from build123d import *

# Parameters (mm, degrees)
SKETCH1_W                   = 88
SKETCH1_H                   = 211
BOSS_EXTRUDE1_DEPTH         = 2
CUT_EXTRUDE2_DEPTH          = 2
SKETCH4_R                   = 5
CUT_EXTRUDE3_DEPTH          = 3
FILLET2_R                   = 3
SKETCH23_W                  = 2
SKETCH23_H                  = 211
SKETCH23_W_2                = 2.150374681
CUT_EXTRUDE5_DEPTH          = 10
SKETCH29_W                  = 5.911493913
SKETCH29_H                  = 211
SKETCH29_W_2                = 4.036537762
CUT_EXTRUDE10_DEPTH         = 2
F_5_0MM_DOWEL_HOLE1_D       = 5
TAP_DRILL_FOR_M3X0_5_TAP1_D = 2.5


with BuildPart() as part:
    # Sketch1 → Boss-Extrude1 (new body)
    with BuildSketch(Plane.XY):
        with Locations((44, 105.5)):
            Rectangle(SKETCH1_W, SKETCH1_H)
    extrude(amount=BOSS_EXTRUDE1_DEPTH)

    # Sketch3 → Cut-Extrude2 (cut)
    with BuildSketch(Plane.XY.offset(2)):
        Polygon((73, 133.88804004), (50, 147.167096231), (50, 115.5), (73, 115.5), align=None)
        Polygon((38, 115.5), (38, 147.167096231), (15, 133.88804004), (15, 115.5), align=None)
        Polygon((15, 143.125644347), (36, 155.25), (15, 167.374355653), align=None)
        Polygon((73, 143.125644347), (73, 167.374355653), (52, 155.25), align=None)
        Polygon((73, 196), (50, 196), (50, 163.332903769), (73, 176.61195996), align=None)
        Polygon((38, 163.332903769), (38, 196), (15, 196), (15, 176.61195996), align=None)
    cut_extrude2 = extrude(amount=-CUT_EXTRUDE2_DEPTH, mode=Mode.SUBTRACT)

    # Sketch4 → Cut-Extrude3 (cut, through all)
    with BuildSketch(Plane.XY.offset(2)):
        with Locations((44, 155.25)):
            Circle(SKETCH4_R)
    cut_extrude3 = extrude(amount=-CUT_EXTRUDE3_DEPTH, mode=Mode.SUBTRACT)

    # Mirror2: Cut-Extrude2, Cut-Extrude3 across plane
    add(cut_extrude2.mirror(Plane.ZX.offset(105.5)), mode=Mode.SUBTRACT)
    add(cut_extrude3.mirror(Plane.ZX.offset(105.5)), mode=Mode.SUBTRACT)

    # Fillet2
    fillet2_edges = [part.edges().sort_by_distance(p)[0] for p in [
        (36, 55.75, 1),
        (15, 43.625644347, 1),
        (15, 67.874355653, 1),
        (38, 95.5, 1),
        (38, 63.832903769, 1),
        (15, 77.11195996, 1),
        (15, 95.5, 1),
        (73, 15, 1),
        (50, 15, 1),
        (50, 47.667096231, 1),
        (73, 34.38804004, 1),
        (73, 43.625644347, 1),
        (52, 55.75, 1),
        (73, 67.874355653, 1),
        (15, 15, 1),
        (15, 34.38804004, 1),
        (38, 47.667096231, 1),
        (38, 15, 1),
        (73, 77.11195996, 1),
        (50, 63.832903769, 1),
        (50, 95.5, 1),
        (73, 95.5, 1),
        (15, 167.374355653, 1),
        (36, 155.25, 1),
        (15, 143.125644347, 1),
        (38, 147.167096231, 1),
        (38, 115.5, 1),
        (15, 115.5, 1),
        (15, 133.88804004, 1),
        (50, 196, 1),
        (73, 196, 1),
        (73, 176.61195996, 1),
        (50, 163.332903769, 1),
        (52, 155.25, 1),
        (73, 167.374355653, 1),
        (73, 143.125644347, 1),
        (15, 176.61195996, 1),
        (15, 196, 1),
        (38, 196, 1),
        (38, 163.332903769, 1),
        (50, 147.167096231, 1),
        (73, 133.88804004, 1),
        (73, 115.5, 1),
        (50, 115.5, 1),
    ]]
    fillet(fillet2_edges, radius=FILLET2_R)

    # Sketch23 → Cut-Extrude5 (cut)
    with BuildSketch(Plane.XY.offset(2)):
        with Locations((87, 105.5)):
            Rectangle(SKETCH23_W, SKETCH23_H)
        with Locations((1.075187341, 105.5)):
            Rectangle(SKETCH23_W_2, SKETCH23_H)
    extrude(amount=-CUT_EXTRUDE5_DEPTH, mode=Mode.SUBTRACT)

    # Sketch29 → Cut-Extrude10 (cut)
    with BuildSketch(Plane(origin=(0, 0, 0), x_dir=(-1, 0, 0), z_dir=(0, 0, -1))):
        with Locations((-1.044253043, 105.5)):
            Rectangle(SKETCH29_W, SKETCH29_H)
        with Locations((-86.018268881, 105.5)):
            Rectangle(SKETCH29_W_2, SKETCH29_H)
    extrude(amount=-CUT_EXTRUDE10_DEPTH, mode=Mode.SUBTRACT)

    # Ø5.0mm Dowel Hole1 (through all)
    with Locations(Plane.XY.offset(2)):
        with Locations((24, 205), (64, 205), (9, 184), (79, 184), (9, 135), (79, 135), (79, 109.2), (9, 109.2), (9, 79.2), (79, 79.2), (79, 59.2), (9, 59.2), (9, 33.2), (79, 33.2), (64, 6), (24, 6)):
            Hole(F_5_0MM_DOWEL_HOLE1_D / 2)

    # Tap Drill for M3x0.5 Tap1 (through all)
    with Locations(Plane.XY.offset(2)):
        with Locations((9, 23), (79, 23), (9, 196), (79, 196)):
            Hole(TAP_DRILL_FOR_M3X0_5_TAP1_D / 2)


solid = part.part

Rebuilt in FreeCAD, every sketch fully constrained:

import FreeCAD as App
import Part
import Sketcher

V = App.Vector
Q = App.Units.Quantity


def edges_at(feature, points):
    """Names of the edges that pass closest to the given points."""
    edges = feature.Shape.Edges
    near = lambda p: min(range(len(edges)), key=lambda i: edges[i].distToShape(Part.Vertex(*p))[0])
    return sorted({f"Edge{near(p) + 1}" for p in points})

doc = App.newDocument("Part")
params = doc.addObject("Spreadsheet::Sheet", "Params")
for row, (alias, value) in enumerate([
    ("sketch1_width", "88 mm"),
    ("sketch1_height", "211 mm"),
    ("pad1_length", "2 mm"),
    ("sketch2_width", "23 mm"),
    ("pocket1_length", "2 mm"),
    ("sketch3_diameter", "10 mm"),
    ("fillet_radius", "3 mm"),
    ("sketch4_width", "2 mm"),
    ("sketch4_height", "211 mm"),
    ("pocket3_length", "10 mm"),
    ("sketch5_height", "211 mm"),
    ("pocket4_length", "2 mm"),
    ("sketch6_diameter", "5 mm"),
    ("hole_diameter", "5 mm"),
    ("sketch7_diameter", "2.5 mm"),
    ("hole2_diameter", "2.5 mm"),
], start=1):
    params.set(f"A{row}", alias)
    params.set(f"B{row}", "=" + value)
    params.setAlias(f"B{row}", alias)

body = doc.addObject("PartDesign::Body", "Body")

# Sketch on XY plane
sketch1 = doc.addObject("Sketcher::SketchObject", "Sketch")
body.addObject(sketch1)
sketch1.AttachmentSupport = (doc.XY_Plane, [""])
sketch1.MapMode = "FlatFace"
sketch1.addGeometry(Part.LineSegment(V(0, 211, 0), V(0, 0, 0)), False)
sketch1.addGeometry(Part.LineSegment(V(0, 0, 0), V(88, 0, 0)), False)
sketch1.addGeometry(Part.LineSegment(V(88, 0, 0), V(88, 211, 0)), False)
sketch1.addGeometry(Part.LineSegment(V(88, 211, 0), V(0, 211, 0)), False)
sketch1.addConstraint(Sketcher.Constraint("Coincident", 0, 2, 1, 1))
sketch1.addConstraint(Sketcher.Constraint("Coincident", 1, 2, 2, 1))
sketch1.addConstraint(Sketcher.Constraint("Coincident", 2, 2, 3, 1))
sketch1.addConstraint(Sketcher.Constraint("Coincident", 3, 2, 0, 1))
sketch1.addConstraint(Sketcher.Constraint("Vertical", 0))
sketch1.addConstraint(Sketcher.Constraint("Horizontal", 1))
sketch1.addConstraint(Sketcher.Constraint("Vertical", 2))
sketch1.addConstraint(Sketcher.Constraint("Horizontal", 3))
sketch1.addConstraint(Sketcher.Constraint("Coincident", 0, 2, -1, 1))
sketch1.addConstraint(Sketcher.Constraint("DistanceX", 1, 1, 1, 2, Q("88 mm")))
sketch1.addConstraint(Sketcher.Constraint("DistanceY", 0, 2, 0, 1, Q("211 mm")))
sketch1.setExpression("Constraints[9]", "Params.sketch1_width")
sketch1.setExpression("Constraints[10]", "Params.sketch1_height")
pad1 = doc.addObject("PartDesign::Pad", "Pad")
body.addObject(pad1)
pad1.Profile = sketch1
pad1.setExpression("Length", "Params.pad1_length")

# Sketch on XY plane
sketch2 = doc.addObject("Sketcher::SketchObject", "Sketch001")
body.addObject(sketch2)
sketch2.AttachmentSupport = (doc.XY_Plane, [""])
sketch2.MapMode = "FlatFace"
sketch2.AttachmentOffset = App.Placement(V(0, 0, 2), App.Rotation())
sketch2.addGeometry(Part.LineSegment(V(73, 133.88804, 0), V(50, 147.167096, 0)), False)
sketch2.addGeometry(Part.LineSegment(V(50, 147.167096, 0), V(50, 115.5, 0)), False)
sketch2.addGeometry(Part.LineSegment(V(50, 115.5, 0), V(73, 115.5, 0)), False)
sketch2.addGeometry(Part.LineSegment(V(73, 115.5, 0), V(73, 133.88804, 0)), False)
sketch2.addGeometry(Part.LineSegment(V(38, 115.5, 0), V(38, 147.167096, 0)), False)
sketch2.addGeometry(Part.LineSegment(V(38, 147.167096, 0), V(15, 133.88804, 0)), False)
sketch2.addGeometry(Part.LineSegment(V(15, 133.88804, 0), V(15, 115.5, 0)), False)
sketch2.addGeometry(Part.LineSegment(V(15, 115.5, 0), V(38, 115.5, 0)), False)
sketch2.addGeometry(Part.LineSegment(V(15, 143.125644, 0), V(36, 155.25, 0)), False)
sketch2.addGeometry(Part.LineSegment(V(36, 155.25, 0), V(15, 167.374356, 0)), False)
sketch2.addGeometry(Part.LineSegment(V(15, 167.374356, 0), V(15, 143.125644, 0)), False)
sketch2.addGeometry(Part.LineSegment(V(73, 143.125644, 0), V(73, 167.374356, 0)), False)
sketch2.addGeometry(Part.LineSegment(V(73, 167.374356, 0), V(52, 155.25, 0)), False)
sketch2.addGeometry(Part.LineSegment(V(52, 155.25, 0), V(73, 143.125644, 0)), False)
sketch2.addGeometry(Part.LineSegment(V(73, 196, 0), V(50, 196, 0)), False)
sketch2.addGeometry(Part.LineSegment(V(50, 196, 0), V(50, 163.332904, 0)), False)
sketch2.addGeometry(Part.LineSegment(V(50, 163.332904, 0), V(73, 176.61196, 0)), False)
sketch2.addGeometry(Part.LineSegment(V(73, 176.61196, 0), V(73, 196, 0)), False)
sketch2.addGeometry(Part.LineSegment(V(38, 163.332904, 0), V(38, 196, 0)), False)
sketch2.addGeometry(Part.LineSegment(V(38, 196, 0), V(15, 196, 0)), False)
sketch2.addGeometry(Part.LineSegment(V(15, 196, 0), V(15, 176.61196, 0)), False)
sketch2.addGeometry(Part.LineSegment(V(15, 176.61196, 0), V(38, 163.332904, 0)), False)
sketch2.addConstraint(Sketcher.Constraint("Coincident", 0, 2, 1, 1))
sketch2.addConstraint(Sketcher.Constraint("Coincident", 1, 2, 2, 1))
sketch2.addConstraint(Sketcher.Constraint("Coincident", 2, 2, 3, 1))
sketch2.addConstraint(Sketcher.Constraint("Coincident", 3, 2, 0, 1))
sketch2.addConstraint(Sketcher.Constraint("Coincident", 4, 2, 5, 1))
sketch2.addConstraint(Sketcher.Constraint("Coincident", 5, 2, 6, 1))
sketch2.addConstraint(Sketcher.Constraint("Coincident", 6, 2, 7, 1))
sketch2.addConstraint(Sketcher.Constraint("Coincident", 7, 2, 4, 1))
sketch2.addConstraint(Sketcher.Constraint("Coincident", 8, 2, 9, 1))
sketch2.addConstraint(Sketcher.Constraint("Coincident", 9, 2, 10, 1))
sketch2.addConstraint(Sketcher.Constraint("Coincident", 10, 2, 8, 1))
sketch2.addConstraint(Sketcher.Constraint("Coincident", 11, 2, 12, 1))
sketch2.addConstraint(Sketcher.Constraint("Coincident", 12, 2, 13, 1))
sketch2.addConstraint(Sketcher.Constraint("Coincident", 13, 2, 11, 1))
sketch2.addConstraint(Sketcher.Constraint("Coincident", 14, 2, 15, 1))
sketch2.addConstraint(Sketcher.Constraint("Coincident", 15, 2, 16, 1))
sketch2.addConstraint(Sketcher.Constraint("Coincident", 16, 2, 17, 1))
sketch2.addConstraint(Sketcher.Constraint("Coincident", 17, 2, 14, 1))
sketch2.addConstraint(Sketcher.Constraint("Coincident", 18, 2, 19, 1))
sketch2.addConstraint(Sketcher.Constraint("Coincident", 19, 2, 20, 1))
sketch2.addConstraint(Sketcher.Constraint("Coincident", 20, 2, 21, 1))
sketch2.addConstraint(Sketcher.Constraint("Coincident", 21, 2, 18, 1))
sketch2.addConstraint(Sketcher.Constraint("Vertical", 1))
sketch2.addConstraint(Sketcher.Constraint("Horizontal", 2))
sketch2.addConstraint(Sketcher.Constraint("Vertical", 3))
sketch2.addConstraint(Sketcher.Constraint("Vertical", 4))
sketch2.addConstraint(Sketcher.Constraint("Vertical", 6))
sketch2.addConstraint(Sketcher.Constraint("Horizontal", 7))
sketch2.addConstraint(Sketcher.Constraint("Vertical", 10))
sketch2.addConstraint(Sketcher.Constraint("Vertical", 11))
sketch2.addConstraint(Sketcher.Constraint("Horizontal", 14))
sketch2.addConstraint(Sketcher.Constraint("Vertical", 15))
sketch2.addConstraint(Sketcher.Constraint("Vertical", 17))
sketch2.addConstraint(Sketcher.Constraint("Vertical", 18))
sketch2.addConstraint(Sketcher.Constraint("Horizontal", 19))
sketch2.addConstraint(Sketcher.Constraint("Vertical", 20))
sketch2.addConstraint(Sketcher.Constraint("Parallel", 5, 8))
sketch2.addConstraint(Sketcher.Constraint("Parallel", 0, 9))
sketch2.addConstraint(Sketcher.Constraint("Parallel", 8, 12))
sketch2.addConstraint(Sketcher.Constraint("Parallel", 9, 13))
sketch2.addConstraint(Sketcher.Constraint("Parallel", 12, 16))
sketch2.addConstraint(Sketcher.Constraint("Parallel", 13, 21))
sketch2.addConstraint(Sketcher.Constraint("Horizontal", 0, 2, 4, 2))
sketch2.addConstraint(Sketcher.Constraint("Horizontal", 3, 2, 5, 2))
sketch2.addConstraint(Sketcher.Constraint("Horizontal", 2, 2, 6, 2))
sketch2.addConstraint(Sketcher.Constraint("Horizontal", 9, 2, 11, 2))
sketch2.addConstraint(Sketcher.Constraint("Horizontal", 8, 2, 12, 2))
sketch2.addConstraint(Sketcher.Constraint("Horizontal", 10, 2, 13, 2))
sketch2.addConstraint(Sketcher.Constraint("Horizontal", 17, 2, 18, 2))
sketch2.addConstraint(Sketcher.Constraint("Horizontal", 16, 2, 20, 2))
sketch2.addConstraint(Sketcher.Constraint("Horizontal", 15, 2, 21, 2))
sketch2.addConstraint(Sketcher.Constraint("Vertical", 6, 2, 9, 2))
sketch2.addConstraint(Sketcher.Constraint("Vertical", 3, 2, 11, 2))
sketch2.addConstraint(Sketcher.Constraint("Vertical", 1, 2, 14, 2))
sketch2.addConstraint(Sketcher.Constraint("Vertical", 13, 2, 16, 2))
sketch2.addConstraint(Sketcher.Constraint("Vertical", 7, 2, 18, 2))
sketch2.addConstraint(Sketcher.Constraint("DistanceX", 2, 1, 2, 2, Q("23 mm")))
sketch2.addConstraint(Sketcher.Constraint("Angle", 0, Q("150 deg")))
sketch2.addConstraint(Sketcher.Constraint("DistanceX", -1, 1, 0, 2, Q("50 mm")))
sketch2.addConstraint(Sketcher.Constraint("DistanceX", -1, 1, 4, 2, Q("38 mm")))
sketch2.addConstraint(Sketcher.Constraint("DistanceX", -1, 1, 8, 2, Q("36 mm")))
sketch2.addConstraint(Sketcher.Constraint("DistanceY", -1, 1, 14, 2, Q("196 mm")))
sketch2.addConstraint(Sketcher.Constraint("DistanceY", -1, 1, 1, 2, Q("115.5 mm")))
sketch2.addConstraint(Sketcher.Constraint("DistanceY", -1, 1, 8, 2, Q("155.25 mm")))
sketch2.addConstraint(Sketcher.Constraint("DistanceY", 3, 1, 3, 2, Q("18.38804 mm")))
sketch2.addConstraint(Sketcher.Constraint("DistanceY", 17, 1, 17, 2, Q("19.38804 mm")))
sketch2.setExpression("Constraints[56]", "Params.sketch2_width")
pocket1 = doc.addObject("PartDesign::Pocket", "Pocket")
body.addObject(pocket1)
pocket1.Profile = sketch2
pocket1.setExpression("Length", "Params.pocket1_length")

# Sketch on XY plane
sketch3 = doc.addObject("Sketcher::SketchObject", "Sketch002")
body.addObject(sketch3)
sketch3.AttachmentSupport = (doc.XY_Plane, [""])
sketch3.MapMode = "FlatFace"
sketch3.AttachmentOffset = App.Placement(V(0, 0, 2), App.Rotation())
sketch3.addGeometry(Part.Circle(V(44, 155.25, 0), V(0, 0, 1), 5), False)
sketch3.addConstraint(Sketcher.Constraint("Diameter", 0, Q("10 mm")))
sketch3.addConstraint(Sketcher.Constraint("DistanceX", -1, 1, 0, 3, Q("44 mm")))
sketch3.addConstraint(Sketcher.Constraint("DistanceY", -1, 1, 0, 3, Q("155.25 mm")))
sketch3.setExpression("Constraints[0]", "Params.sketch3_diameter")
pocket2 = doc.addObject("PartDesign::Pocket", "Pocket001")
body.addObject(pocket2)
pocket2.Profile = sketch3
pocket2.Type = "ThroughAll"
doc.recompute()

datumplane = doc.addObject("PartDesign::Plane", "DatumPlane")
body.addObject(datumplane)
datumplane.AttachmentSupport = (doc.XZ_Plane, [""])
datumplane.MapMode = "FlatFace"
datumplane.AttachmentOffset = App.Placement(V(0, 0, -105.5), App.Rotation())
mirrored = doc.addObject("PartDesign::Mirrored", "Mirrored")
body.addObject(mirrored)
mirrored.Originals = [pocket1, pocket2]
mirrored.MirrorPlane = (datumplane, [""])
body.Tip = mirrored
doc.recompute()

fillet = doc.addObject("PartDesign::Fillet", "Fillet")
body.addObject(fillet)
fillet.Base = (mirrored, edges_at(mirrored, [
    (36, 55.75, 1),
    (15, 43.626, 1),
    (15, 67.874, 1),
    (38, 95.5, 1),
    (38, 63.833, 1),
    (15, 77.112, 1),
    (15, 95.5, 1),
    (73, 15, 1),
    (50, 15, 1),
    (50, 47.667, 1),
    (73, 34.388, 1),
    (73, 43.626, 1),
    (52, 55.75, 1),
    (73, 67.874, 1),
    (15, 15, 1),
    (15, 34.388, 1),
    (38, 47.667, 1),
    (38, 15, 1),
    (73, 77.112, 1),
    (50, 63.833, 1),
    (50, 95.5, 1),
    (73, 95.5, 1),
    (15, 167.374, 1),
    (36, 155.25, 1),
    (15, 143.126, 1),
    (38, 147.167, 1),
    (38, 115.5, 1),
    (15, 115.5, 1),
    (15, 133.888, 1),
    (50, 196, 1),
    (73, 196, 1),
    (73, 176.612, 1),
    (50, 163.333, 1),
    (52, 155.25, 1),
    (73, 167.374, 1),
    (73, 143.126, 1),
    (15, 176.612, 1),
    (15, 196, 1),
    (38, 196, 1),
    (38, 163.333, 1),
    (50, 147.167, 1),
    (73, 133.888, 1),
    (73, 115.5, 1),
    (50, 115.5, 1),
]))
fillet.setExpression("Radius", "Params.fillet_radius")

# Sketch on XY plane
sketch4 = doc.addObject("Sketcher::SketchObject", "Sketch003")
body.addObject(sketch4)
sketch4.AttachmentSupport = (doc.XY_Plane, [""])
sketch4.MapMode = "FlatFace"
sketch4.AttachmentOffset = App.Placement(V(0, 0, 2), App.Rotation())
sketch4.addGeometry(Part.LineSegment(V(86, 211, 0), V(86, 0, 0)), False)
sketch4.addGeometry(Part.LineSegment(V(86, 0, 0), V(88, 0, 0)), False)
sketch4.addGeometry(Part.LineSegment(V(88, 0, 0), V(88, 211, 0)), False)
sketch4.addGeometry(Part.LineSegment(V(88, 211, 0), V(86, 211, 0)), False)
sketch4.addGeometry(Part.LineSegment(V(0, 211, 0), V(0, 0, 0)), False)
sketch4.addGeometry(Part.LineSegment(V(0, 0, 0), V(2.150375, 0, 0)), False)
sketch4.addGeometry(Part.LineSegment(V(2.150375, 0, 0), V(2.150375, 211, 0)), False)
sketch4.addGeometry(Part.LineSegment(V(2.150375, 211, 0), V(0, 211, 0)), False)
sketch4.addConstraint(Sketcher.Constraint("Coincident", 0, 2, 1, 1))
sketch4.addConstraint(Sketcher.Constraint("Coincident", 1, 2, 2, 1))
sketch4.addConstraint(Sketcher.Constraint("Coincident", 2, 2, 3, 1))
sketch4.addConstraint(Sketcher.Constraint("Coincident", 3, 2, 0, 1))
sketch4.addConstraint(Sketcher.Constraint("Coincident", 4, 2, 5, 1))
sketch4.addConstraint(Sketcher.Constraint("Coincident", 5, 2, 6, 1))
sketch4.addConstraint(Sketcher.Constraint("Coincident", 6, 2, 7, 1))
sketch4.addConstraint(Sketcher.Constraint("Coincident", 7, 2, 4, 1))
sketch4.addConstraint(Sketcher.Constraint("Vertical", 0))
sketch4.addConstraint(Sketcher.Constraint("Horizontal", 1))
sketch4.addConstraint(Sketcher.Constraint("Vertical", 2))
sketch4.addConstraint(Sketcher.Constraint("Horizontal", 3))
sketch4.addConstraint(Sketcher.Constraint("Vertical", 4))
sketch4.addConstraint(Sketcher.Constraint("Horizontal", 5))
sketch4.addConstraint(Sketcher.Constraint("Vertical", 6))
sketch4.addConstraint(Sketcher.Constraint("Horizontal", 7))
sketch4.addConstraint(Sketcher.Constraint("Coincident", 4, 2, -1, 1))
sketch4.addConstraint(Sketcher.Constraint("PointOnObject", 0, 2, -1))
sketch4.addConstraint(Sketcher.Constraint("Horizontal", 3, 2, 6, 2))
sketch4.addConstraint(Sketcher.Constraint("DistanceX", 1, 1, 1, 2, Q("2 mm")))
sketch4.addConstraint(Sketcher.Constraint("DistanceY", 0, 2, 0, 1, Q("211 mm")))
sketch4.addConstraint(Sketcher.Constraint("DistanceX", -1, 1, 0, 2, Q("86 mm")))
sketch4.addConstraint(Sketcher.Constraint("DistanceX", 5, 1, 5, 2, Q("2.150375 mm")))
sketch4.setExpression("Constraints[19]", "Params.sketch4_width")
sketch4.setExpression("Constraints[20]", "Params.sketch4_height")
pocket3 = doc.addObject("PartDesign::Pocket", "Pocket002")
body.addObject(pocket3)
pocket3.Profile = sketch4
pocket3.setExpression("Length", "Params.pocket3_length")

# Sketch on XY plane
sketch5 = doc.addObject("Sketcher::SketchObject", "Sketch004")
body.addObject(sketch5)
sketch5.AttachmentSupport = (doc.XY_Plane, [""])
sketch5.MapMode = "FlatFace"
sketch5.addGeometry(Part.LineSegment(V(4, 211, 0), V(4, 0, 0)), False)
sketch5.addGeometry(Part.LineSegment(V(4, 0, 0), V(-1.911494, 0, 0)), False)
sketch5.addGeometry(Part.LineSegment(V(-1.911494, 0, 0), V(-1.911494, 211, 0)), False)
sketch5.addGeometry(Part.LineSegment(V(-1.911494, 211, 0), V(4, 211, 0)), False)
sketch5.addGeometry(Part.LineSegment(V(88.036538, 211, 0), V(88.036538, 0, 0)), False)
sketch5.addGeometry(Part.LineSegment(V(88.036538, 0, 0), V(84, 0, 0)), False)
sketch5.addGeometry(Part.LineSegment(V(84, 0, 0), V(84, 211, 0)), False)
sketch5.addGeometry(Part.LineSegment(V(84, 211, 0), V(88.036538, 211, 0)), False)
sketch5.addConstraint(Sketcher.Constraint("Coincident", 0, 2, 1, 1))
sketch5.addConstraint(Sketcher.Constraint("Coincident", 1, 2, 2, 1))
sketch5.addConstraint(Sketcher.Constraint("Coincident", 2, 2, 3, 1))
sketch5.addConstraint(Sketcher.Constraint("Coincident", 3, 2, 0, 1))
sketch5.addConstraint(Sketcher.Constraint("Coincident", 4, 2, 5, 1))
sketch5.addConstraint(Sketcher.Constraint("Coincident", 5, 2, 6, 1))
sketch5.addConstraint(Sketcher.Constraint("Coincident", 6, 2, 7, 1))
sketch5.addConstraint(Sketcher.Constraint("Coincident", 7, 2, 4, 1))
sketch5.addConstraint(Sketcher.Constraint("Vertical", 0))
sketch5.addConstraint(Sketcher.Constraint("Horizontal", 1))
sketch5.addConstraint(Sketcher.Constraint("Vertical", 2))
sketch5.addConstraint(Sketcher.Constraint("Horizontal", 3))
sketch5.addConstraint(Sketcher.Constraint("Vertical", 4))
sketch5.addConstraint(Sketcher.Constraint("Horizontal", 5))
sketch5.addConstraint(Sketcher.Constraint("Vertical", 6))
sketch5.addConstraint(Sketcher.Constraint("Horizontal", 7))
sketch5.addConstraint(Sketcher.Constraint("PointOnObject", 0, 2, -1))
sketch5.addConstraint(Sketcher.Constraint("PointOnObject", 4, 2, -1))
sketch5.addConstraint(Sketcher.Constraint("Horizontal", 3, 2, 6, 2))
sketch5.addConstraint(Sketcher.Constraint("DistanceY", 0, 2, 0, 1, Q("211 mm")))
sketch5.addConstraint(Sketcher.Constraint("DistanceX", -1, 1, 0, 2, Q("4 mm")))
sketch5.addConstraint(Sketcher.Constraint("DistanceX", -1, 1, 5, 2, Q("84 mm")))
sketch5.addConstraint(Sketcher.Constraint("DistanceX", 1, 2, 1, 1, Q("5.911494 mm")))
sketch5.addConstraint(Sketcher.Constraint("DistanceX", 5, 2, 5, 1, Q("4.036538 mm")))
sketch5.setExpression("Constraints[19]", "Params.sketch5_height")
pocket4 = doc.addObject("PartDesign::Pocket", "Pocket003")
body.addObject(pocket4)
pocket4.Profile = sketch5
pocket4.setExpression("Length", "Params.pocket4_length")
pocket4.Reversed = True

# Sketch on XY plane
sketch6 = doc.addObject("Sketcher::SketchObject", "Sketch005")
body.addObject(sketch6)
sketch6.AttachmentSupport = (doc.XY_Plane, [""])
sketch6.MapMode = "FlatFace"
sketch6.AttachmentOffset = App.Placement(V(0, 0, 2), App.Rotation())
sketch6.addGeometry(Part.Circle(V(24, 205, 0), V(0, 0, 1), 2.5), False)
sketch6.addGeometry(Part.Circle(V(64, 205, 0), V(0, 0, 1), 2.5), False)
sketch6.addGeometry(Part.Circle(V(9, 184, 0), V(0, 0, 1), 2.5), False)
sketch6.addGeometry(Part.Circle(V(79, 184, 0), V(0, 0, 1), 2.5), False)
sketch6.addGeometry(Part.Circle(V(9, 135, 0), V(0, 0, 1), 2.5), False)
sketch6.addGeometry(Part.Circle(V(79, 135, 0), V(0, 0, 1), 2.5), False)
sketch6.addGeometry(Part.Circle(V(79, 109.2, 0), V(0, 0, 1), 2.5), False)
sketch6.addGeometry(Part.Circle(V(9, 109.2, 0), V(0, 0, 1), 2.5), False)
sketch6.addGeometry(Part.Circle(V(9, 79.2, 0), V(0, 0, 1), 2.5), False)
sketch6.addGeometry(Part.Circle(V(79, 79.2, 0), V(0, 0, 1), 2.5), False)
sketch6.addGeometry(Part.Circle(V(79, 59.2, 0), V(0, 0, 1), 2.5), False)
sketch6.addGeometry(Part.Circle(V(9, 59.2, 0), V(0, 0, 1), 2.5), False)
sketch6.addGeometry(Part.Circle(V(9, 33.2, 0), V(0, 0, 1), 2.5), False)
sketch6.addGeometry(Part.Circle(V(79, 33.2, 0), V(0, 0, 1), 2.5), False)
sketch6.addGeometry(Part.Circle(V(64, 6, 0), V(0, 0, 1), 2.5), False)
sketch6.addGeometry(Part.Circle(V(24, 6, 0), V(0, 0, 1), 2.5), False)
sketch6.addConstraint(Sketcher.Constraint("Equal", 0, 1))
sketch6.addConstraint(Sketcher.Constraint("Equal", 1, 2))
sketch6.addConstraint(Sketcher.Constraint("Equal", 2, 3))
sketch6.addConstraint(Sketcher.Constraint("Equal", 3, 4))
sketch6.addConstraint(Sketcher.Constraint("Equal", 4, 5))
sketch6.addConstraint(Sketcher.Constraint("Equal", 5, 6))
sketch6.addConstraint(Sketcher.Constraint("Equal", 6, 7))
sketch6.addConstraint(Sketcher.Constraint("Equal", 7, 8))
sketch6.addConstraint(Sketcher.Constraint("Equal", 8, 9))
sketch6.addConstraint(Sketcher.Constraint("Equal", 9, 10))
sketch6.addConstraint(Sketcher.Constraint("Equal", 10, 11))
sketch6.addConstraint(Sketcher.Constraint("Equal", 11, 12))
sketch6.addConstraint(Sketcher.Constraint("Equal", 12, 13))
sketch6.addConstraint(Sketcher.Constraint("Equal", 13, 14))
sketch6.addConstraint(Sketcher.Constraint("Equal", 14, 15))
sketch6.addConstraint(Sketcher.Constraint("Horizontal", 0, 3, 1, 3))
sketch6.addConstraint(Sketcher.Constraint("Horizontal", 2, 3, 3, 3))
sketch6.addConstraint(Sketcher.Constraint("Horizontal", 4, 3, 5, 3))
sketch6.addConstraint(Sketcher.Constraint("Horizontal", 6, 3, 7, 3))
sketch6.addConstraint(Sketcher.Constraint("Horizontal", 8, 3, 9, 3))
sketch6.addConstraint(Sketcher.Constraint("Horizontal", 10, 3, 11, 3))
sketch6.addConstraint(Sketcher.Constraint("Horizontal", 12, 3, 13, 3))
sketch6.addConstraint(Sketcher.Constraint("Horizontal", 14, 3, 15, 3))
sketch6.addConstraint(Sketcher.Constraint("Vertical", 2, 3, 4, 3))
sketch6.addConstraint(Sketcher.Constraint("Vertical", 3, 3, 5, 3))
sketch6.addConstraint(Sketcher.Constraint("Vertical", 5, 3, 6, 3))
sketch6.addConstraint(Sketcher.Constraint("Vertical", 4, 3, 7, 3))
sketch6.addConstraint(Sketcher.Constraint("Vertical", 7, 3, 8, 3))
sketch6.addConstraint(Sketcher.Constraint("Vertical", 6, 3, 9, 3))
sketch6.addConstraint(Sketcher.Constraint("Vertical", 9, 3, 10, 3))
sketch6.addConstraint(Sketcher.Constraint("Vertical", 8, 3, 11, 3))
sketch6.addConstraint(Sketcher.Constraint("Vertical", 11, 3, 12, 3))
sketch6.addConstraint(Sketcher.Constraint("Vertical", 10, 3, 13, 3))
sketch6.addConstraint(Sketcher.Constraint("Vertical", 1, 3, 14, 3))
sketch6.addConstraint(Sketcher.Constraint("Vertical", 0, 3, 15, 3))
sketch6.addConstraint(Sketcher.Constraint("Diameter", 0, Q("5 mm")))
sketch6.addConstraint(Sketcher.Constraint("DistanceX", -1, 1, 0, 3, Q("24 mm")))
sketch6.addConstraint(Sketcher.Constraint("DistanceY", -1, 1, 0, 3, Q("205 mm")))
sketch6.addConstraint(Sketcher.Constraint("DistanceX", -1, 1, 1, 3, Q("64 mm")))
sketch6.addConstraint(Sketcher.Constraint("DistanceX", -1, 1, 2, 3, Q("9 mm")))
sketch6.addConstraint(Sketcher.Constraint("DistanceY", -1, 1, 2, 3, Q("184 mm")))
sketch6.addConstraint(Sketcher.Constraint("DistanceX", -1, 1, 3, 3, Q("79 mm")))
sketch6.addConstraint(Sketcher.Constraint("DistanceY", -1, 1, 4, 3, Q("135 mm")))
sketch6.addConstraint(Sketcher.Constraint("DistanceY", -1, 1, 14, 3, Q("6 mm")))
sketch6.addConstraint(Sketcher.Constraint("DistanceY", 8, 3, 7, 3, Q("30 mm")))
sketch6.addConstraint(Sketcher.Constraint("DistanceY", 10, 3, 9, 3, Q("20 mm")))
sketch6.addConstraint(Sketcher.Constraint("DistanceY", 12, 3, 11, 3, Q("26 mm")))
sketch6.addConstraint(Sketcher.Constraint("DistanceY", -1, 1, 6, 3, Q("109.2 mm")))
sketch6.setExpression("Constraints[35]", "Params.sketch6_diameter")
doc.recompute()
hole = doc.addObject("PartDesign::Hole", "Hole")
body.addObject(hole)
hole.Profile = sketch6
hole.ThreadType = "None"
hole.setExpression("Diameter", "Params.hole_diameter")
hole.DepthType = "ThroughAll"

# Sketch on XY plane
sketch7 = doc.addObject("Sketcher::SketchObject", "Sketch006")
body.addObject(sketch7)
sketch7.AttachmentSupport = (doc.XY_Plane, [""])
sketch7.MapMode = "FlatFace"
sketch7.AttachmentOffset = App.Placement(V(0, 0, 2), App.Rotation())
sketch7.addGeometry(Part.Circle(V(9, 23, 0), V(0, 0, 1), 1.25), False)
sketch7.addGeometry(Part.Circle(V(79, 23, 0), V(0, 0, 1), 1.25), False)
sketch7.addGeometry(Part.Circle(V(9, 196, 0), V(0, 0, 1), 1.25), False)
sketch7.addGeometry(Part.Circle(V(79, 196, 0), V(0, 0, 1), 1.25), False)
sketch7.addConstraint(Sketcher.Constraint("Equal", 0, 1))
sketch7.addConstraint(Sketcher.Constraint("Equal", 1, 2))
sketch7.addConstraint(Sketcher.Constraint("Equal", 2, 3))
sketch7.addConstraint(Sketcher.Constraint("Horizontal", 0, 3, 1, 3))
sketch7.addConstraint(Sketcher.Constraint("Horizontal", 2, 3, 3, 3))
sketch7.addConstraint(Sketcher.Constraint("Vertical", 0, 3, 2, 3))
sketch7.addConstraint(Sketcher.Constraint("Vertical", 1, 3, 3, 3))
sketch7.addConstraint(Sketcher.Constraint("Diameter", 0, Q("2.5 mm")))
sketch7.addConstraint(Sketcher.Constraint("DistanceX", -1, 1, 0, 3, Q("9 mm")))
sketch7.addConstraint(Sketcher.Constraint("DistanceY", -1, 1, 0, 3, Q("23 mm")))
sketch7.addConstraint(Sketcher.Constraint("DistanceX", -1, 1, 1, 3, Q("79 mm")))
sketch7.addConstraint(Sketcher.Constraint("DistanceY", -1, 1, 2, 3, Q("196 mm")))
sketch7.setExpression("Constraints[7]", "Params.sketch7_diameter")
doc.recompute()
hole2 = doc.addObject("PartDesign::Hole", "Hole001")
body.addObject(hole2)
hole2.Profile = sketch7
hole2.ThreadType = "None"
hole2.setExpression("Diameter", "Params.hole2_diameter")
hole2.DepthType = "ThroughAll"

doc.recompute()
